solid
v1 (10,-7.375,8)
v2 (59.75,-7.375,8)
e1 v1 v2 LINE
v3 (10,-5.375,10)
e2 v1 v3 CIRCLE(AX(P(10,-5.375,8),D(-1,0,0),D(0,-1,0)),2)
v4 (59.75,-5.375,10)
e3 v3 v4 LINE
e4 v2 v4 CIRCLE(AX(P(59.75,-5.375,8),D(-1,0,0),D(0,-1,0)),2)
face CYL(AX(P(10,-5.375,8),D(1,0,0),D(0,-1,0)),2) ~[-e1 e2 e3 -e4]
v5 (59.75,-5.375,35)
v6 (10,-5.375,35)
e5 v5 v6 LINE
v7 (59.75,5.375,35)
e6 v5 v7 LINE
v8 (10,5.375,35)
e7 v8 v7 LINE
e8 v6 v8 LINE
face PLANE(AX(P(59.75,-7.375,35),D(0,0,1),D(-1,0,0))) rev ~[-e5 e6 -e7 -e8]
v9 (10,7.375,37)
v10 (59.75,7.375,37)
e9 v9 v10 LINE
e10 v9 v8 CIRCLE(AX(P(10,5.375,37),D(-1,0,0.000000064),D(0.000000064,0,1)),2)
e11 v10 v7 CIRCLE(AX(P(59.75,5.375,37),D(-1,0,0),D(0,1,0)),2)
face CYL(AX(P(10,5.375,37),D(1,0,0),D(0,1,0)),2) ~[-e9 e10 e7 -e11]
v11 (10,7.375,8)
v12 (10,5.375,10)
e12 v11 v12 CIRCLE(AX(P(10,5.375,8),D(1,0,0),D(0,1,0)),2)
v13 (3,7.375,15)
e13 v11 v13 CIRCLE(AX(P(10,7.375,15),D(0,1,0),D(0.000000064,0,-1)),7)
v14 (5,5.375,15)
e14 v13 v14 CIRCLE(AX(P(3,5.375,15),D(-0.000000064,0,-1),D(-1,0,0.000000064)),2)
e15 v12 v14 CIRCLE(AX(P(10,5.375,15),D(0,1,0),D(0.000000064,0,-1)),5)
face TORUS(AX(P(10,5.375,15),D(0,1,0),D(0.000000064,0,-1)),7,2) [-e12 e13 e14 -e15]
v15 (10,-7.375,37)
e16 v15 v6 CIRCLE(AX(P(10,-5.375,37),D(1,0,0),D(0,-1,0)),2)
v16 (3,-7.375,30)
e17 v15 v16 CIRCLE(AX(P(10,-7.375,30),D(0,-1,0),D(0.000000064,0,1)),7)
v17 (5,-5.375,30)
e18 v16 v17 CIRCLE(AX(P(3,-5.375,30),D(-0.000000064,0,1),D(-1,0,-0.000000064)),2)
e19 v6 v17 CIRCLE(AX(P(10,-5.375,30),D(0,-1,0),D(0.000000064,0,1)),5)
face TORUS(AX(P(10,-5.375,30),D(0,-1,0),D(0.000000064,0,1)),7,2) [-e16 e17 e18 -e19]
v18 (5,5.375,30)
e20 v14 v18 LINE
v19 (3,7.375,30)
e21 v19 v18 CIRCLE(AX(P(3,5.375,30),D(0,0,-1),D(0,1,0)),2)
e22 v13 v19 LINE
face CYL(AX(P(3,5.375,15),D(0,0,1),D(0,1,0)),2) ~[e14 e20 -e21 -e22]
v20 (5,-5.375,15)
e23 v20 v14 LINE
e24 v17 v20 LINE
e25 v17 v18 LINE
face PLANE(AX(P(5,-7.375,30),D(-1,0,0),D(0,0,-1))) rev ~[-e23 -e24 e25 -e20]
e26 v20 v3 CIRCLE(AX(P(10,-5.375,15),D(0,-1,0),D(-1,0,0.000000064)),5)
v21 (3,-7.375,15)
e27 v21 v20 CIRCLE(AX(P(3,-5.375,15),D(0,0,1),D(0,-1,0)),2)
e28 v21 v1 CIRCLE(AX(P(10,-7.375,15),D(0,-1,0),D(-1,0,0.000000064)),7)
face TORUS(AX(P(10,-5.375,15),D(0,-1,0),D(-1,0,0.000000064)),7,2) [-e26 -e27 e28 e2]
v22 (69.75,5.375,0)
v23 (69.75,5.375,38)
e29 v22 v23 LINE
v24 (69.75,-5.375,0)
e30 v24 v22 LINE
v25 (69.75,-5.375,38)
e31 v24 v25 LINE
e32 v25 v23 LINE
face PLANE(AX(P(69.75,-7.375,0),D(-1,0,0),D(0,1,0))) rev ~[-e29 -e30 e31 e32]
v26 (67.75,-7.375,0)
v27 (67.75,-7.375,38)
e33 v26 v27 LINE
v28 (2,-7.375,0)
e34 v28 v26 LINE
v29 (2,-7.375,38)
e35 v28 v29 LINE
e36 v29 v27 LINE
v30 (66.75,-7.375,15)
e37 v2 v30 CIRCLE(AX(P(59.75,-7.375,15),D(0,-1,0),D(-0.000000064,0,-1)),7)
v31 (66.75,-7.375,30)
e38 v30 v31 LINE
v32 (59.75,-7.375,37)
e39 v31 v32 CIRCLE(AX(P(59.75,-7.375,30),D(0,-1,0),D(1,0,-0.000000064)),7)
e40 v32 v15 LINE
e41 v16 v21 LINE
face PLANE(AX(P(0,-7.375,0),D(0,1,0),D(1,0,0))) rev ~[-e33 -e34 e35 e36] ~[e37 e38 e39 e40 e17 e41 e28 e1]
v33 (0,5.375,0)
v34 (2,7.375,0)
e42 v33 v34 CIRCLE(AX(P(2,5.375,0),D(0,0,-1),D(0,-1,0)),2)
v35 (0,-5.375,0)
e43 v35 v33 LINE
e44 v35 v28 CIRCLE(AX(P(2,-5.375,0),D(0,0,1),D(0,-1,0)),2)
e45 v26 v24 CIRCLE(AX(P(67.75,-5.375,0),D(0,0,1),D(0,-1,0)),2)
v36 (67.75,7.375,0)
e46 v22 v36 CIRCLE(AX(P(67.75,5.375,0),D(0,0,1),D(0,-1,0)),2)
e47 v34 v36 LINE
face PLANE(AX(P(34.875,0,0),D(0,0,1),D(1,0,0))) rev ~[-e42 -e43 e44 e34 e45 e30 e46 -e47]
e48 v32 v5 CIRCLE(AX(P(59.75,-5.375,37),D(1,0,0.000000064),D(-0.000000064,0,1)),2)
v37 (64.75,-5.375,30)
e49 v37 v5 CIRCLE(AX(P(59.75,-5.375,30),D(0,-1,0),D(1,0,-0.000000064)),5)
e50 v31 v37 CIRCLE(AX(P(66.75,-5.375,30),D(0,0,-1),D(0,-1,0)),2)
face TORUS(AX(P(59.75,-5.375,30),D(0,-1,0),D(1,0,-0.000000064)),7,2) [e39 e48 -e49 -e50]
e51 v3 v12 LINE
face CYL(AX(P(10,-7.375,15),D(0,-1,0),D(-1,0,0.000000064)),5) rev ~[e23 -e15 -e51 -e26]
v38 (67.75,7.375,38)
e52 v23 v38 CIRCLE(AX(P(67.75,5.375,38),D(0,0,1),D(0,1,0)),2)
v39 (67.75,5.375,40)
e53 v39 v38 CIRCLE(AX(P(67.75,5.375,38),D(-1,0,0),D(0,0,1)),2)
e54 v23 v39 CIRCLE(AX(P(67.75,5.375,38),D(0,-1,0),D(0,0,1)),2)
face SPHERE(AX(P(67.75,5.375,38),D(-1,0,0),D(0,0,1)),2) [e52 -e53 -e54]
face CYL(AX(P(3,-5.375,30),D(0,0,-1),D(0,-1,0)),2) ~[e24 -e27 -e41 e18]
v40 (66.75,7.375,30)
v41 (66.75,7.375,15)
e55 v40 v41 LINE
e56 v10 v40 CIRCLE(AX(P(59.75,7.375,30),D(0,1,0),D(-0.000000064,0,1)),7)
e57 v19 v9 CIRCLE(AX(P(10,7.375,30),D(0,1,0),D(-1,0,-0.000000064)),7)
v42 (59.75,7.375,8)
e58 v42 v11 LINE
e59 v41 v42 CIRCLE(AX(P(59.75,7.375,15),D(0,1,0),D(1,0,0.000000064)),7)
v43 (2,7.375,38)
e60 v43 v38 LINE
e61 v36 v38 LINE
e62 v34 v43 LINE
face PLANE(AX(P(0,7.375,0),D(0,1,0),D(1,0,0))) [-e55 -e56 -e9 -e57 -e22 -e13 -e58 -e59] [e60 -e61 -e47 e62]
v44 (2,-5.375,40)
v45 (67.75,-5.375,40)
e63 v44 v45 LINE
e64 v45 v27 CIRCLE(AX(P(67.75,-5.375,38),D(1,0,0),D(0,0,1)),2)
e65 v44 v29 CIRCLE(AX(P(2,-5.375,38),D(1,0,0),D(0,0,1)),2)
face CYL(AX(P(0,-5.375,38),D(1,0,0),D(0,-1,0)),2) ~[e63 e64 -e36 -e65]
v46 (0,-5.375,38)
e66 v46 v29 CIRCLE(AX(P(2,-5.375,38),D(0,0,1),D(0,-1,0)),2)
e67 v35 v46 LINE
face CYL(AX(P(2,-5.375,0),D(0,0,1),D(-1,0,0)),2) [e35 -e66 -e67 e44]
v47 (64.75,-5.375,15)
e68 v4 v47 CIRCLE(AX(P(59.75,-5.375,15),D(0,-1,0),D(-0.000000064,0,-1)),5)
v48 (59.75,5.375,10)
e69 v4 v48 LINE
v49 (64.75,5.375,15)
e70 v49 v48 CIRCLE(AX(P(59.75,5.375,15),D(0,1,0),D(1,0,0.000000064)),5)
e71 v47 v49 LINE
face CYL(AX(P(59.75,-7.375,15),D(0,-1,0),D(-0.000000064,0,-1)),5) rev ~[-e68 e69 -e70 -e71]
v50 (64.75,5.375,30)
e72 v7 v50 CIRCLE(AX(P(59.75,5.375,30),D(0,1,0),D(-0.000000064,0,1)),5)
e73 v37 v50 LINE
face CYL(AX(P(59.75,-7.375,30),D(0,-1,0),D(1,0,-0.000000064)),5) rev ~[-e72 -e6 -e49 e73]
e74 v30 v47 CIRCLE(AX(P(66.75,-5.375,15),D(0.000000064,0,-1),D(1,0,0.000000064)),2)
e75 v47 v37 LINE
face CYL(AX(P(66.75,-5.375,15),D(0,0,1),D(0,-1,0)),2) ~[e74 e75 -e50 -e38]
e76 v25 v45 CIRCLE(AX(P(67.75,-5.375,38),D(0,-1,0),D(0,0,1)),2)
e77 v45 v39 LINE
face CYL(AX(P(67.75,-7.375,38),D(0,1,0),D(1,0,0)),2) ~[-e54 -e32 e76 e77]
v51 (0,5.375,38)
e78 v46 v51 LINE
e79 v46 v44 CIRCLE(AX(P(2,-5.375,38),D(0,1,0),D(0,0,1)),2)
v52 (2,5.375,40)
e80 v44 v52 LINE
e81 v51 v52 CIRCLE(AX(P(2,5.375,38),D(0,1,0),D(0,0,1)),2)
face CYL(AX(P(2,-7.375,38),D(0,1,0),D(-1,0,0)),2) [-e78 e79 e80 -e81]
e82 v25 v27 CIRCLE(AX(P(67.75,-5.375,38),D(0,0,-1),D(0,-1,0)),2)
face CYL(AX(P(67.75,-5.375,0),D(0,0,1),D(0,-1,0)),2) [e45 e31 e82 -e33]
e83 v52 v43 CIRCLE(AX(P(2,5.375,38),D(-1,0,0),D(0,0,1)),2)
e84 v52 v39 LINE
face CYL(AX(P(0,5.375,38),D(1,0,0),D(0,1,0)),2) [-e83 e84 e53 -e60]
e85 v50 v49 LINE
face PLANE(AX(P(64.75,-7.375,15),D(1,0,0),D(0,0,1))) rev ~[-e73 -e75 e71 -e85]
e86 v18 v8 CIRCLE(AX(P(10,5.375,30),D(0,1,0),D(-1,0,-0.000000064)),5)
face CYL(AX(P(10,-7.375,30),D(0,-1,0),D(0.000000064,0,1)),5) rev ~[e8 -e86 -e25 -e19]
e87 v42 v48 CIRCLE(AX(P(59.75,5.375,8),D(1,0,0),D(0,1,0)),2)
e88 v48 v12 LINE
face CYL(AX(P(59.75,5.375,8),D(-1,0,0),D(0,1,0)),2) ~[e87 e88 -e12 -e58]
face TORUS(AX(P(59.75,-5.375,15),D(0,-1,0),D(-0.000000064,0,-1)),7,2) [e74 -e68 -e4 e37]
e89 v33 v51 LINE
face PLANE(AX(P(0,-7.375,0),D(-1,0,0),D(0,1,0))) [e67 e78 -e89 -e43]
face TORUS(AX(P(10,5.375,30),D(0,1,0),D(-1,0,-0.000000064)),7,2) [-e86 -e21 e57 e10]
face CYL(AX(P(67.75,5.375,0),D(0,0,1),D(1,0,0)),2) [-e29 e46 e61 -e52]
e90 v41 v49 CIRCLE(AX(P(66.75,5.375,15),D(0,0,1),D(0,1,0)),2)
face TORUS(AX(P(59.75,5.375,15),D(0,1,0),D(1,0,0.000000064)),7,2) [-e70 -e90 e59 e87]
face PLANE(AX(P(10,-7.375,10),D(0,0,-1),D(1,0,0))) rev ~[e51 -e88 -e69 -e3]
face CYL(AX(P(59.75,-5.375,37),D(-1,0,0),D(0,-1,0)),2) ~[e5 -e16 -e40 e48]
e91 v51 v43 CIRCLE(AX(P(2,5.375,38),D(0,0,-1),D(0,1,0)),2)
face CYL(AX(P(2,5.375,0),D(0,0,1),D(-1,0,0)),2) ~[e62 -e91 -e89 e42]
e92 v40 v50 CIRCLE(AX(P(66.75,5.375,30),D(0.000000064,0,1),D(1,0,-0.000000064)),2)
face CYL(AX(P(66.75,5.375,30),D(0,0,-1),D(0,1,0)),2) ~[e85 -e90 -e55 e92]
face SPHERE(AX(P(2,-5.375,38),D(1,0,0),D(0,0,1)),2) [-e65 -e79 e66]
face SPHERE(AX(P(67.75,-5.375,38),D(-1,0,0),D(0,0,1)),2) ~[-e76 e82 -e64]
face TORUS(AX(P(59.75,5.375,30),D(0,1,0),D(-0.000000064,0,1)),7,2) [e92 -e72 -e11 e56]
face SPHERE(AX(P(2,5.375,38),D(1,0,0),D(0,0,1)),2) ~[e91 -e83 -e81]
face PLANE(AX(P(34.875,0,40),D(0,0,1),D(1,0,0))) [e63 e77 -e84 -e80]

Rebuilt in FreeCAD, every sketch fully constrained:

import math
import FreeCAD as App
import Part
import Sketcher
from FreeCAD import Vector


def edges_at(feature, points):
    """Names of the edges that pass closest to the given points."""
    edges = feature.Shape.Edges
    near = lambda p: min(range(len(edges)), key=lambda i: edges[i].distToShape(Part.Vertex(*p))[0])
    return sorted({f"Edge{near(p) + 1}" for p in points})


def add_polygon(sketch, points):
    """Adds a closed chain of lines whose ends are joined by coincident constraints."""
    first, n = sketch.GeometryCount, len(points)
    for a, b in zip(points, points[1:] + points[:1]):
        sketch.addGeometry(Part.LineSegment(App.Vector(*a, 0), App.Vector(*b, 0)), False)
    for i in range(n):
        sketch.addConstraint(Sketcher.Constraint("Coincident", first + i, 2, first + (i + 1) % n, 1))

doc = App.newDocument("Part")
body = doc.addObject("PartDesign::Body", "Body")

sketch1 = body.newObject("Sketcher::SketchObject", "Sketch")
sketch1.AttachmentSupport = (doc.getObject("XY_Plane"), [""])
sketch1.MapMode = "FlatFace"
add_polygon(sketch1, [(0, 7), (0, -7), (70, -7), (70, 7)])
sketch1.addConstraint([
    Sketcher.Constraint("Vertical", 0),
    Sketcher.Constraint("Horizontal", 1),
    Sketcher.Constraint("Vertical", 2),
    Sketcher.Constraint("Horizontal", 3),
    Sketcher.Constraint("Symmetric", 0, 2, 3, 2, -1, 1),
    Sketcher.Constraint("DistanceX", 1, 1, 1, 2, 69.75),
    Sketcher.Constraint("DistanceY", 0, 2, 0, 1, 14.75),
])
pad1 = body.newObject("PartDesign::Pad", "Pad")
pad1.Profile = sketch1
pad1.Length = 40
doc.recompute()

fillet = body.newObject("PartDesign::Fillet", "Fillet")
fillet.Base = (pad1, edges_at(pad1, [
    (34.875, -7.375, 40),
    (34.875, 7.375, 40),
    (69.75, 0, 40),
    (0, 0, 40),
    (69.75, -7.375, 20),
    (69.75, 7.375, 20),
    (0, -7.375, 20),
    (0, 7.375, 20),
]))
fillet.Radius = 2

sketch2 = body.newObject("Sketcher::SketchObject", "Sketch001")
sketch2.AttachmentSupport = (doc.getObject("XZ_Plane"), [""])
sketch2.MapMode = "FlatFace"
sketch2.AttachmentOffset = App.Placement(Vector(0, 0, 7.375), App.Rotation())
sketch2.addGeometry([
    Part.LineSegment(Vector(59.8, 35, 0), Vector(10, 35, 0)),
    Part.ArcOfCircle(Part.Circle(Vector(10, 30, 0), Vector(0, 0, 1), 5), math.radians(90), math.radians(180)),
    Part.LineSegment(Vector(5, 30, 0), Vector(5, 15, 0)),
    Part.ArcOfCircle(Part.Circle(Vector(10, 15, 0), Vector(0, 0, 1), 5), math.radians(180), math.radians(270)),
    Part.LineSegment(Vector(10, 10, 0), Vector(59.8, 10, 0)),
    Part.ArcOfCircle(Part.Circle(Vector(59.8, 15, 0), Vector(0, 0, 1), 5), math.radians(-90), math.radians(0)),
    Part.LineSegment(Vector(64.8, 15, 0), Vector(64.8, 30, 0)),
    Part.ArcOfCircle(Part.Circle(Vector(59.8, 30, 0), Vector(0, 0, 1), 5), math.radians(0), math.radians(90)),
], False)
sketch2.addConstraint([
    Sketcher.Constraint("Tangent", 0, 2, 1, 1),
    Sketcher.Constraint("Tangent", 1, 2, 2, 1),
    Sketcher.Constraint("Tangent", 2, 2, 3, 1),
    Sketcher.Constraint("Tangent", 3, 2, 4, 1),
    Sketcher.Constraint("Tangent", 4, 2, 5, 1),
    Sketcher.Constraint("Tangent", 5, 2, 6, 1),
    Sketcher.Constraint("Tangent", 6, 2, 7, 1),
    Sketcher.Constraint("Tangent", 7, 2, 0, 1),
    Sketcher.Constraint("Horizontal", 0),
    Sketcher.Constraint("Vertical", 2),
    Sketcher.Constraint("Horizontal", 4),
    Sketcher.Constraint("Vertical", 6),
    Sketcher.Constraint("Equal", 1, 3),
    Sketcher.Constraint("Equal", 3, 5),
    Sketcher.Constraint("Equal", 5, 7),
    Sketcher.Constraint("Radius", 1, 5.0),
    Sketcher.Constraint("DistanceY", 2, 2, 2, 1, 15.0),
    Sketcher.Constraint("DistanceX", -1, 1, 1, 3, 10.0),
    Sketcher.Constraint("DistanceY", -1, 1, 1, 3, 30.0),
    Sketcher.Constraint("DistanceX", 0, 2, 0, 1, 49.75),
])
pocket1 = body.newObject("PartDesign::Pocket", "Pocket")
pocket1.Profile = sketch2
pocket1.Type = "ThroughAll"
doc.recompute()

fillet2 = body.newObject("PartDesign::Fillet", "Fillet001")
fillet2.Base = (pocket1, edges_at(pocket1, [(34.875, -7.375, 10), (34.875, 7.375, 10)]))
fillet2.Radius = 2

doc.recompute()
